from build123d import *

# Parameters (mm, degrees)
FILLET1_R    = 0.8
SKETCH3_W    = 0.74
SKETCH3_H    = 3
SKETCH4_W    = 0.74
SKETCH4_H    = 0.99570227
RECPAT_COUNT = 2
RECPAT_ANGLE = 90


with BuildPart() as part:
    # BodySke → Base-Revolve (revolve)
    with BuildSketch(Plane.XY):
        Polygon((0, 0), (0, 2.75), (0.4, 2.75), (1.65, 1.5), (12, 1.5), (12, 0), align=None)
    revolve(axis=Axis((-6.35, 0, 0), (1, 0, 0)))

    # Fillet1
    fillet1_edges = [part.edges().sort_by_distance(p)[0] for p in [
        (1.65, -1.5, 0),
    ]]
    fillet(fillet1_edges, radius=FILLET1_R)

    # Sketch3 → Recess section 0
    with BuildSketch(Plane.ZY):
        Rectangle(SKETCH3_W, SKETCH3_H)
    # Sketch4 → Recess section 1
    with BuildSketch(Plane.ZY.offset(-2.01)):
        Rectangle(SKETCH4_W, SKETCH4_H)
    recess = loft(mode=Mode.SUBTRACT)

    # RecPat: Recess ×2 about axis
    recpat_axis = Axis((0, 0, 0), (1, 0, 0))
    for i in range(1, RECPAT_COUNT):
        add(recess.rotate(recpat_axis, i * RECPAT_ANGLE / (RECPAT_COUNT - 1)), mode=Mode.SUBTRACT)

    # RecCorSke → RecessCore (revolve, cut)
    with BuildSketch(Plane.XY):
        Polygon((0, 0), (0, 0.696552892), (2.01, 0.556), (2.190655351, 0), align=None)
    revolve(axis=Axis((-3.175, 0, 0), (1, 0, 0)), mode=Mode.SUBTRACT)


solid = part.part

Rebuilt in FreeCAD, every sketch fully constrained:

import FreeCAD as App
import Part
import Sketcher

V = App.Vector
Q = App.Units.Quantity


def edges_at(feature, points):
    """Names of the edges that pass closest to the given points."""
    edges = feature.Shape.Edges
    near = lambda p: min(range(len(edges)), key=lambda i: edges[i].distToShape(Part.Vertex(*p))[0])
    return sorted({f"Edge{near(p) + 1}" for p in points})

doc = App.newDocument("Part")
body = doc.addObject("PartDesign::Body", "Body")

# Sketch on XY plane
sketch1 = body.newObject("Sketcher::SketchObject", "Sketch")
sketch1.AttachmentSupport = (doc.getObject("XY_Plane"), [""])
sketch1.MapMode = "FlatFace"
sketch1.addGeometry([
    Part.LineSegment(V(0, 2.75, 0), V(0, 0, 0)),  # 0
    Part.LineSegment(V(0, 0, 0), V(12, 0, 0)),  # 1
    Part.LineSegment(V(12, 0, 0), V(12, 1.5, 0)),  # 2
    Part.LineSegment(V(12, 1.5, 0), V(1.65, 1.5, 0)),  # 3
    Part.LineSegment(V(1.65, 1.5, 0), V(0.4, 2.75, 0)),  # 4
    Part.LineSegment(V(0.4, 2.75, 0), V(0, 2.75, 0)),  # 5
], False)
sketch1.addConstraint([
    Sketcher.Constraint("Coincident", 0, 2, 1, 1),
    Sketcher.Constraint("Coincident", 1, 2, 2, 1),
    Sketcher.Constraint("Coincident", 2, 2, 3, 1),
    Sketcher.Constraint("Coincident", 3, 2, 4, 1),
    Sketcher.Constraint("Coincident", 4, 2, 5, 1),
    Sketcher.Constraint("Coincident", 5, 2, 0, 1),
    Sketcher.Constraint("Vertical", 0),
    Sketcher.Constraint("Horizontal", 1),
    Sketcher.Constraint("Vertical", 2),
    Sketcher.Constraint("Horizontal", 3),
    Sketcher.Constraint("Horizontal", 5),
    Sketcher.Constraint("Coincident", 0, 2, -1, 1),
    Sketcher.Constraint("DistanceX", 1, 1, 1, 2, 12.0),
    Sketcher.Constraint("Angle", 4, Q("135 deg")),
    Sketcher.Constraint("DistanceX", 5, 2, 5, 1, 0.4),
    Sketcher.Constraint("DistanceY", 2, 1, 2, 2, 1.5),
    Sketcher.Constraint("DistanceX", 3, 2, 3, 1, 10.35),
])
revolution = body.newObject("PartDesign::Revolution", "Revolution")
revolution.Profile = sketch1
revolution.ReferenceAxis = (sketch1, ["H_Axis"])
revolution.Angle = 360
doc.recompute()

fillet = body.newObject("PartDesign::Fillet", "Fillet")
fillet.Base = (revolution, edges_at(revolution, [(1.65, -1.5, 0)]))
fillet.Radius = 0.8

# Sketch on YZ plane
sketch2 = body.newObject("Sketcher::SketchObject", "Sketch001")
sketch2.AttachmentSupport = (doc.getObject("YZ_Plane"), [""])
sketch2.MapMode = "FlatFace"
sketch2.addGeometry([
    Part.LineSegment(V(1.5, -0.37, 0), V(-1.5, -0.37, 0)),
    Part.LineSegment(V(-1.5, -0.37, 0), V(-1.5, 0.37, 0)),
    Part.LineSegment(V(-1.5, 0.37, 0), V(1.5, 0.37, 0)),
    Part.LineSegment(V(1.5, 0.37, 0), V(1.5, -0.37, 0)),
], False)
sketch2.addConstraint([
    Sketcher.Constraint("Coincident", 0, 2, 1, 1),
    Sketcher.Constraint("Coincident", 1, 2, 2, 1),
    Sketcher.Constraint("Coincident", 2, 2, 3, 1),
    Sketcher.Constraint("Coincident", 3, 2, 0, 1),
    Sketcher.Constraint("Horizontal", 0),
    Sketcher.Constraint("Vertical", 1),
    Sketcher.Constraint("Horizontal", 2),
    Sketcher.Constraint("Vertical", 3),
    Sketcher.Constraint("Symmetric", 0, 2, 2, 2, -1, 1),
    Sketcher.Constraint("DistanceX", 0, 2, 0, 1, 3.0),
    Sketcher.Constraint("DistanceY", 1, 1, 1, 2, 0.74),
])

# Sketch on YZ plane
sketch3 = body.newObject("Sketcher::SketchObject", "Sketch002")
sketch3.AttachmentSupport = (doc.getObject("YZ_Plane"), [""])
sketch3.MapMode = "FlatFace"
sketch3.AttachmentOffset = App.Placement(V(0, 0, 2.01), App.Rotation())
sketch3.addGeometry([
    Part.LineSegment(V(0.497851, -0.37, 0), V(-0.497851, -0.37, 0)),
    Part.LineSegment(V(-0.497851, -0.37, 0), V(-0.497851, 0.37, 0)),
    Part.LineSegment(V(-0.497851, 0.37, 0), V(0.497851, 0.37, 0)),
    Part.LineSegment(V(0.497851, 0.37, 0), V(0.497851, -0.37, 0)),
], False)
sketch3.addConstraint([
    Sketcher.Constraint("Coincident", 0, 2, 1, 1),
    Sketcher.Constraint("Coincident", 1, 2, 2, 1),
    Sketcher.Constraint("Coincident", 2, 2, 3, 1),
    Sketcher.Constraint("Coincident", 3, 2, 0, 1),
    Sketcher.Constraint("Horizontal", 0),
    Sketcher.Constraint("Vertical", 1),
    Sketcher.Constraint("Horizontal", 2),
    Sketcher.Constraint("Vertical", 3),
    Sketcher.Constraint("Symmetric", 0, 2, 2, 2, -1, 1),
    Sketcher.Constraint("DistanceY", 1, 1, 1, 2, 0.74),
    Sketcher.Constraint("DistanceX", 0, 2, 0, 1, 0.995702),
])

subtractiveloft = body.newObject("PartDesign::SubtractiveLoft", "SubtractiveLoft")
subtractiveloft.Profile = sketch2
subtractiveloft.Sections = [sketch3]
doc.recompute()

polarpattern = body.newObject("PartDesign::PolarPattern", "PolarPattern")
polarpattern.Originals = [subtractiveloft]
polarpattern.Axis = (doc.getObject("X_Axis"), [""])
polarpattern.Angle = 90
polarpattern.Occurrences = 2
body.Tip = polarpattern

# Sketch on XY plane
sketch4 = body.newObject("Sketcher::SketchObject", "Sketch003")
sketch4.AttachmentSupport = (doc.getObject("XY_Plane"), [""])
sketch4.MapMode = "FlatFace"
sketch4.addGeometry([
    Part.LineSegment(V(0, 0.696553, 0), V(0, 0, 0)),
    Part.LineSegment(V(0, 0, 0), V(2.190655, 0, 0)),
    Part.LineSegment(V(2.190655, 0, 0), V(2.01, 0.556, 0)),
    Part.LineSegment(V(2.01, 0.556, 0), V(0, 0.696553, 0)),
], False)
sketch4.addConstraint([
    Sketcher.Constraint("Coincident", 0, 2, 1, 1),
    Sketcher.Constraint("Coincident", 1, 2, 2, 1),
    Sketcher.Constraint("Coincident", 2, 2, 3, 1),
    Sketcher.Constraint("Coincident", 3, 2, 0, 1),
    Sketcher.Constraint("Vertical", 0),
    Sketcher.Constraint("Horizontal", 1),
    Sketcher.Constraint("Coincident", 0, 2, -1, 1),
    Sketcher.Constraint("Angle", 2, Q("108 deg")),
    Sketcher.Constraint("Angle", 3, Q("176 deg")),
    Sketcher.Constraint("DistanceX", -1, 1, 2, 2, 2.01),
    Sketcher.Constraint("DistanceY", -1, 1, 2, 2, 0.556),
])
groove = body.newObject("PartDesign::Groove", "Groove")
groove.Profile = sketch4
groove.ReferenceAxis = (sketch4, ["H_Axis"])
groove.Angle = 360

doc.recompute()
